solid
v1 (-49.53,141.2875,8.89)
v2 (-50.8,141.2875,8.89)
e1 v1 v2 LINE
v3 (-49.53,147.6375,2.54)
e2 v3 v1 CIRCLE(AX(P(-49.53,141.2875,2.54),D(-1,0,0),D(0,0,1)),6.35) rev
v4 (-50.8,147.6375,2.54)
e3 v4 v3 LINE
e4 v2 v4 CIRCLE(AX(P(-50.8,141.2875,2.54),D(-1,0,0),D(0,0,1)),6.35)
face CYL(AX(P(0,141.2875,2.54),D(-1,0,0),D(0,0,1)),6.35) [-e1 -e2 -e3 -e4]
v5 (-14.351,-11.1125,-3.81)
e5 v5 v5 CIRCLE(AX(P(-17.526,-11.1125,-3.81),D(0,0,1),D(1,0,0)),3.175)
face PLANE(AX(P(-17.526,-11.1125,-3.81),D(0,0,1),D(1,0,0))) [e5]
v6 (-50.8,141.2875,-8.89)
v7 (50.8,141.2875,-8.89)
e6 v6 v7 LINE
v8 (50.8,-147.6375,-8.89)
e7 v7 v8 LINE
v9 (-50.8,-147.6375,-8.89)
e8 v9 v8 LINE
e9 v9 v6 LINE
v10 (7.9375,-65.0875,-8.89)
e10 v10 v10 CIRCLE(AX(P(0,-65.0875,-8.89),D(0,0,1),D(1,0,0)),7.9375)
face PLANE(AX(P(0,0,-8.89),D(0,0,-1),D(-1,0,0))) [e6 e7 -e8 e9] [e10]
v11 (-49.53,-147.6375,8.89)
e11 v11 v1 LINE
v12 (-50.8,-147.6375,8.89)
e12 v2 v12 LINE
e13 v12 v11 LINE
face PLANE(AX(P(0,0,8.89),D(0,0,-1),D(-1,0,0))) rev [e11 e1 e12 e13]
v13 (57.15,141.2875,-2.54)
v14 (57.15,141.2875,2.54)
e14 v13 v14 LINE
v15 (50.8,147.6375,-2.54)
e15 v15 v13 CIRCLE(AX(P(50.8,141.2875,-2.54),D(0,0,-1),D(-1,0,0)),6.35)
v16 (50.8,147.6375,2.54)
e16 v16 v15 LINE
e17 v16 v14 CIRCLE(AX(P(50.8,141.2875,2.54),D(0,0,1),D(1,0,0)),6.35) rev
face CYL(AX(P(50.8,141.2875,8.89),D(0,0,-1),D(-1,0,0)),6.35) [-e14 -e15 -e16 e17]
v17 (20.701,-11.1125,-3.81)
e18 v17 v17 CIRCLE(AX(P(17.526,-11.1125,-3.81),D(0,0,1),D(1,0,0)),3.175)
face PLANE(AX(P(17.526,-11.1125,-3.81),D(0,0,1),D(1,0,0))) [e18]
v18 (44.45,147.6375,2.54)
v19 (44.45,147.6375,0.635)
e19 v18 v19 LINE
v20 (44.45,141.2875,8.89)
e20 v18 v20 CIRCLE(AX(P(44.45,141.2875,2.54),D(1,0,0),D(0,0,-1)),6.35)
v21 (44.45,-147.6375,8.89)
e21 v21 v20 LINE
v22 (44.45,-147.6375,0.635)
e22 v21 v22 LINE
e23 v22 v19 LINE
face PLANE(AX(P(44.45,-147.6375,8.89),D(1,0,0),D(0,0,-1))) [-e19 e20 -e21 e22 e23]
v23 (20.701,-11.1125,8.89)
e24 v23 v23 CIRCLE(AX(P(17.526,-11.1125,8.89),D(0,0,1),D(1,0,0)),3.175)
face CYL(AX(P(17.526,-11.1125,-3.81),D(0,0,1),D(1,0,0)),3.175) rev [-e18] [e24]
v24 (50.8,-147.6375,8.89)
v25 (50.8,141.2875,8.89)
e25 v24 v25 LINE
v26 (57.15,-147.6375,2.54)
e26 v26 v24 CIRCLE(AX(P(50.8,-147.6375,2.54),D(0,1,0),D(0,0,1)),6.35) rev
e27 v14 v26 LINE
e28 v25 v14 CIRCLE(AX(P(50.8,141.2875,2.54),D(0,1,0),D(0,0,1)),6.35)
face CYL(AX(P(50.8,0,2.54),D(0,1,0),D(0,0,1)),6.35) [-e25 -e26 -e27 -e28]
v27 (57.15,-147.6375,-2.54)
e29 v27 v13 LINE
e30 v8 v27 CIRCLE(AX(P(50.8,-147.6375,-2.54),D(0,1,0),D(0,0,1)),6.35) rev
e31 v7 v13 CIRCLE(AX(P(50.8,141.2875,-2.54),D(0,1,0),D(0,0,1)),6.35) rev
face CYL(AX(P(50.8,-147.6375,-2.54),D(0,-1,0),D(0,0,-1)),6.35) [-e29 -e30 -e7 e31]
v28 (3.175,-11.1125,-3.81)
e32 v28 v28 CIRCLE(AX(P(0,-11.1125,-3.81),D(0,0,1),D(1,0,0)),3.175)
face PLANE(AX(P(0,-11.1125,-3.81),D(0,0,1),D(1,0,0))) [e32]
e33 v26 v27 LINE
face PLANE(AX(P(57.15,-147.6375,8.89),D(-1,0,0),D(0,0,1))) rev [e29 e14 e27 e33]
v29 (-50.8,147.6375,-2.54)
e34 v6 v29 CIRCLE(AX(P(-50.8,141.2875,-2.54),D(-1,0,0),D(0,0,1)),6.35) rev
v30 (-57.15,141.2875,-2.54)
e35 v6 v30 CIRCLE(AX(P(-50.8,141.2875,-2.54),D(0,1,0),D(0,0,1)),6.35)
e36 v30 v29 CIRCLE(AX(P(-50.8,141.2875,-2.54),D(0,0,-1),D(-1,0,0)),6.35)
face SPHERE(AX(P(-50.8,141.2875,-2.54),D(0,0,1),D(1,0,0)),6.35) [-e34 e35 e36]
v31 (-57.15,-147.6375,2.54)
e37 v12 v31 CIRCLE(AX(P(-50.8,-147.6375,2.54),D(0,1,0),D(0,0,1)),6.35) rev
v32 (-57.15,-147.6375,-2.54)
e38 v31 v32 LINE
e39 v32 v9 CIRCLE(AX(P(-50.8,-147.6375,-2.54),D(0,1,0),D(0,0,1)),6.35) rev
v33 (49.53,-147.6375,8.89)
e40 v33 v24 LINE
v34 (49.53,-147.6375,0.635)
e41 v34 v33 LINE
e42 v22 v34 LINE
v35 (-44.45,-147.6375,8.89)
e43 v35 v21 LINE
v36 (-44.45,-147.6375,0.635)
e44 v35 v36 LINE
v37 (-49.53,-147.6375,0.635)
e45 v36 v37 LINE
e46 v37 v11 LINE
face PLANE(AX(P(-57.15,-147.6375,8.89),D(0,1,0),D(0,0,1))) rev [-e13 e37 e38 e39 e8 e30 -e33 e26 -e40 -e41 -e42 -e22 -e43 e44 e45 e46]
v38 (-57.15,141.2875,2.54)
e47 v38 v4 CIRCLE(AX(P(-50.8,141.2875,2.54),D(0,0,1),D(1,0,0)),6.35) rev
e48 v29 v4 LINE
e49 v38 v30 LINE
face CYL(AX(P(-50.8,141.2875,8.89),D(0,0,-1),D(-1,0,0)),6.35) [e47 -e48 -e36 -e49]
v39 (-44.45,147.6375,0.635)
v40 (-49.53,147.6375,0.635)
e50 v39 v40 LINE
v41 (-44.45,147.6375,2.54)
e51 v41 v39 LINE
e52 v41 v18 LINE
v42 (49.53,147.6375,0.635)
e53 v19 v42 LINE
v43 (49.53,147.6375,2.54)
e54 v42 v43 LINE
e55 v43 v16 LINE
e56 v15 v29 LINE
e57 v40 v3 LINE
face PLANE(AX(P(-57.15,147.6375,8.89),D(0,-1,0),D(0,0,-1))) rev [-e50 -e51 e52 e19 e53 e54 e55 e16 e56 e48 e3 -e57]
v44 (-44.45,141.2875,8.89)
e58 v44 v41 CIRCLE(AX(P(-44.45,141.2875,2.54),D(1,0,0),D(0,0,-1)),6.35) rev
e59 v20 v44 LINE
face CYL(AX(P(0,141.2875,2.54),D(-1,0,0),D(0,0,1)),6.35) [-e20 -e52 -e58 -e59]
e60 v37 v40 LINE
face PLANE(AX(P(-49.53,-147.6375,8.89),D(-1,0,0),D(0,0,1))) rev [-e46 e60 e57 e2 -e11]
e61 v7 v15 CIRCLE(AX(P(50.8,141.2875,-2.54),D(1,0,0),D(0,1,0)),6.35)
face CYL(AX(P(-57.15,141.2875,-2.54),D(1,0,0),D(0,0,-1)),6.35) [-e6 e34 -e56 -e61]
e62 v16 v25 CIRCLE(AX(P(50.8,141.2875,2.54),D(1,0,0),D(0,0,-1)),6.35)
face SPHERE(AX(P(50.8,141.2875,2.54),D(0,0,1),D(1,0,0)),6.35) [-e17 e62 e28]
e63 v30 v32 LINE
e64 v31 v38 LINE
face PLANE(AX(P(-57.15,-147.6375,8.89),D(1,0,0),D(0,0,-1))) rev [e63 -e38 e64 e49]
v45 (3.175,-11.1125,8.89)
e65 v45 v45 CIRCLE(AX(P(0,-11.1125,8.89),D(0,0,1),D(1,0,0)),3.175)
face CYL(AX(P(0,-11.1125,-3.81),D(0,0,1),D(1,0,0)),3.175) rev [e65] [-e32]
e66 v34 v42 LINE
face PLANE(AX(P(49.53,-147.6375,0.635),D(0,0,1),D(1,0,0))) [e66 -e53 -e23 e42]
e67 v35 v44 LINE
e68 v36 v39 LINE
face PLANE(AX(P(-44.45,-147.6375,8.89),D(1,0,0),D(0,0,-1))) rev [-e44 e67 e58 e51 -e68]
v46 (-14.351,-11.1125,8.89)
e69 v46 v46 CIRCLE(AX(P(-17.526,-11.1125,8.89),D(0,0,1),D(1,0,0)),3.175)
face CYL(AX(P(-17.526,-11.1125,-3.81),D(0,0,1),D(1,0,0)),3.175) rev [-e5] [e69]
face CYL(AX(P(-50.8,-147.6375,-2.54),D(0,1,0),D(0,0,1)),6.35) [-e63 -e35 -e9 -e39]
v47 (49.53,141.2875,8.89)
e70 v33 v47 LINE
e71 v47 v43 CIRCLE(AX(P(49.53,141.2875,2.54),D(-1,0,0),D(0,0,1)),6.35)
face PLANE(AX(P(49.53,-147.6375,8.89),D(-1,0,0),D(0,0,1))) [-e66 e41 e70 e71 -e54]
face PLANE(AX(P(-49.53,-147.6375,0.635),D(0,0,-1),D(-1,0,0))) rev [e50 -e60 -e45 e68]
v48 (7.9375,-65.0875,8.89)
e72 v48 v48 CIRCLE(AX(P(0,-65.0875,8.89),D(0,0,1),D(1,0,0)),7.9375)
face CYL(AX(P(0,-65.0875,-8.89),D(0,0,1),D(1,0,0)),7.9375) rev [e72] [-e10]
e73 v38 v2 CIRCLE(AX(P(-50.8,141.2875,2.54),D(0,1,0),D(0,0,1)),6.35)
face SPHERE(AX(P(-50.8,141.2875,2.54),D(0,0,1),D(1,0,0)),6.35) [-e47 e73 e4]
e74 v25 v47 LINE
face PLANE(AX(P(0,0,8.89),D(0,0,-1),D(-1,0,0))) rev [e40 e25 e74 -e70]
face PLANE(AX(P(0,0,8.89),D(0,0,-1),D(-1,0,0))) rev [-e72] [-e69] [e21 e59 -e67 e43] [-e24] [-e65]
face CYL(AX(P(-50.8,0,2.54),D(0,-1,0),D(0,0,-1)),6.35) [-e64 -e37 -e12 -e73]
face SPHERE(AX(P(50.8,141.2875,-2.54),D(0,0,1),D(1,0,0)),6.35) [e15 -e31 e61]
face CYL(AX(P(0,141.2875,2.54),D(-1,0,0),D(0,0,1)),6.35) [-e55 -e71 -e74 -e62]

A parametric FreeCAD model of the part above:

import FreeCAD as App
import Part
import Sketcher

V = App.Vector
Q = App.Units.Quantity


def edges_at(feature, points):
    """Names of the edges that pass closest to the given points."""
    edges = feature.Shape.Edges
    near = lambda p: min(range(len(edges)), key=lambda i: edges[i].distToShape(Part.Vertex(*p))[0])
    return sorted({f"Edge{near(p) + 1}" for p in points})

doc = App.newDocument("Part")
body = doc.addObject("PartDesign::Body", "Body")

# Sketch on XY plane
sketch1 = body.newObject("Sketcher::SketchObject", "Sketch")
sketch1.AttachmentSupport = (doc.getObject("XY_Plane"), [""])
sketch1.MapMode = "FlatFace"
sketch1.addGeometry(Part.LineSegment(V(-57, 148, 0), V(-57, -148, 0)), False)
sketch1.addGeometry(Part.LineSegment(V(-57, -148, 0), V(57, -148, 0)), False)
sketch1.addGeometry(Part.LineSegment(V(57, -148, 0), V(57, 148, 0)), False)
sketch1.addGeometry(Part.LineSegment(V(57, 148, 0), V(-57, 148, 0)), False)
sketch1.addConstraint(Sketcher.Constraint("Coincident", 0, 2, 1, 1))
sketch1.addConstraint(Sketcher.Constraint("Coincident", 1, 2, 2, 1))
sketch1.addConstraint(Sketcher.Constraint("Coincident", 2, 2, 3, 1))
sketch1.addConstraint(Sketcher.Constraint("Coincident", 3, 2, 0, 1))
sketch1.addConstraint(Sketcher.Constraint("Vertical", 0))
sketch1.addConstraint(Sketcher.Constraint("Horizontal", 1))
sketch1.addConstraint(Sketcher.Constraint("Vertical", 2))
sketch1.addConstraint(Sketcher.Constraint("Horizontal", 3))
sketch1.addConstraint(Sketcher.Constraint("Symmetric", 0, 2, 2, 2, -1, 1))
sketch1.addConstraint(Sketcher.Constraint("DistanceX", 1, 1, 1, 2, Q("4.5 in")))
sketch1.addConstraint(Sketcher.Constraint("DistanceY", 0, 2, 0, 1, Q("11.625 in")))
pad1 = body.newObject("PartDesign::Pad", "Pad")
pad1.Profile = sketch1
pad1.Length = Q("0.7 in")
pad1.Midplane = True

# Sketch on XY plane
sketch2 = body.newObject("Sketcher::SketchObject", "Sketch001")
sketch2.AttachmentSupport = (doc.getObject("XY_Plane"), [""])
sketch2.MapMode = "FlatFace"
sketch2.AttachmentOffset = App.Placement(V(0, 0, 0.35 * 25.4), App.Rotation())
sketch2.addGeometry(Part.Circle(V(0, -11.1, 0), V(0, 0, 1), 3.2), False)
sketch2.addGeometry(Part.Circle(V(-17.5, -11.1, 0), V(0, 0, 1), 3.2), False)
sketch2.addGeometry(Part.Circle(V(17.5, -11.1, 0), V(0, 0, 1), 3.2), False)
sketch2.addConstraint(Sketcher.Constraint("Equal", 0, 1))
sketch2.addConstraint(Sketcher.Constraint("Equal", 1, 2))
sketch2.addConstraint(Sketcher.Constraint("Symmetric", 1, 3, 2, 3, -2))
sketch2.addConstraint(Sketcher.Constraint("PointOnObject", 0, 3, -2))
sketch2.addConstraint(Sketcher.Constraint("Horizontal", 0, 3, 1, 3))
sketch2.addConstraint(Sketcher.Constraint("Diameter", 0, Q("0.25 in")))
sketch2.addConstraint(Sketcher.Constraint("DistanceX", 1, 3, -1, 1, Q("0.69 in")))
sketch2.addConstraint(Sketcher.Constraint("DistanceY", 0, 3, -1, 1, Q("0.4375 in")))
pocket1 = body.newObject("PartDesign::Pocket", "Pocket")
pocket1.Profile = sketch2
pocket1.Length = Q("0.5 in")

# Sketch on XZ plane
sketch3 = body.newObject("Sketcher::SketchObject", "Sketch002")
sketch3.AttachmentSupport = (doc.getObject("XZ_Plane"), [""])
sketch3.MapMode = "FlatFace"
sketch3.AttachmentOffset = App.Placement(V(0, 0, -5.8125 * 25.4), App.Rotation())
sketch3.addGeometry(Part.LineSegment(V(-50, 1, 0), V(-50, 9, 0)), False)
sketch3.addGeometry(Part.LineSegment(V(-50, 9, 0), V(-44, 9, 0)), False)
sketch3.addGeometry(Part.LineSegment(V(-44, 9, 0), V(-44, 1, 0)), False)
sketch3.addGeometry(Part.LineSegment(V(-44, 1, 0), V(-50, 1, 0)), False)
sketch3.addConstraint(Sketcher.Constraint("Coincident", 0, 2, 1, 1))
sketch3.addConstraint(Sketcher.Constraint("Coincident", 1, 2, 2, 1))
sketch3.addConstraint(Sketcher.Constraint("Coincident", 2, 2, 3, 1))
sketch3.addConstraint(Sketcher.Constraint("Coincident", 3, 2, 0, 1))
sketch3.addConstraint(Sketcher.Constraint("Vertical", 0))
sketch3.addConstraint(Sketcher.Constraint("Horizontal", 1))
sketch3.addConstraint(Sketcher.Constraint("Vertical", 2))
sketch3.addConstraint(Sketcher.Constraint("Horizontal", 3))
sketch3.addConstraint(Sketcher.Constraint("DistanceX", 1, 1, 1, 2, Q("0.2 in")))
sketch3.addConstraint(Sketcher.Constraint("DistanceY", 0, 1, 0, 2, Q("0.325 in")))
sketch3.addConstraint(Sketcher.Constraint("DistanceX", 0, 2, -1, 1, Q("1.95 in")))
sketch3.addConstraint(Sketcher.Constraint("DistanceY", -1, 1, 0, 2, Q("0.35 in")))
pocket2 = body.newObject("PartDesign::Pocket", "Pocket001")
pocket2.Profile = sketch3
pocket2.Type = "ThroughAll"
pocket2.Reversed = True
doc.recompute()

mirrored = body.newObject("PartDesign::Mirrored", "Mirrored")
mirrored.Originals = [pocket2]
mirrored.MirrorPlane = (doc.getObject("YZ_Plane"), [""])
body.Tip = mirrored
doc.recompute()

fillet = body.newObject("PartDesign::Fillet", "Fillet")
fillet.Base = (mirrored, edges_at(mirrored, [
    (-57.15, 0, 8.89),
    (-53.34, 147.637, 8.89),
    (57.15, 0, 8.89),
    (0, 147.637, 8.89),
    (-57.15, 0, -8.89),
    (0, 147.637, -8.89),
    (57.15, 0, -8.89),
    (53.34, 147.637, 8.89),
    (-57.15, 147.637, 0),
    (57.15, 147.637, 0),
]))
fillet.Radius = Q("0.25 in")

# Sketch on XY plane
sketch4 = body.newObject("Sketcher::SketchObject", "Sketch003")
sketch4.AttachmentSupport = (doc.getObject("XY_Plane"), [""])
sketch4.MapMode = "FlatFace"
sketch4.AttachmentOffset = App.Placement(V(0, 0, 0.35 * 25.4), App.Rotation())
sketch4.addGeometry(Part.Circle(V(0, -65, 0), V(0, 0, 1), 8), False)
sketch4.addConstraint(Sketcher.Constraint("PointOnObject", 0, 3, -2))
sketch4.addConstraint(Sketcher.Constraint("Diameter", 0, Q("0.625 in")))
sketch4.addConstraint(Sketcher.Constraint("DistanceY", 0, 3, -1, 1, Q("2.5625 in")))
pocket3 = body.newObject("PartDesign::Pocket", "Pocket002")
pocket3.Profile = sketch4
pocket3.Type = "ThroughAll"

doc.recompute()
